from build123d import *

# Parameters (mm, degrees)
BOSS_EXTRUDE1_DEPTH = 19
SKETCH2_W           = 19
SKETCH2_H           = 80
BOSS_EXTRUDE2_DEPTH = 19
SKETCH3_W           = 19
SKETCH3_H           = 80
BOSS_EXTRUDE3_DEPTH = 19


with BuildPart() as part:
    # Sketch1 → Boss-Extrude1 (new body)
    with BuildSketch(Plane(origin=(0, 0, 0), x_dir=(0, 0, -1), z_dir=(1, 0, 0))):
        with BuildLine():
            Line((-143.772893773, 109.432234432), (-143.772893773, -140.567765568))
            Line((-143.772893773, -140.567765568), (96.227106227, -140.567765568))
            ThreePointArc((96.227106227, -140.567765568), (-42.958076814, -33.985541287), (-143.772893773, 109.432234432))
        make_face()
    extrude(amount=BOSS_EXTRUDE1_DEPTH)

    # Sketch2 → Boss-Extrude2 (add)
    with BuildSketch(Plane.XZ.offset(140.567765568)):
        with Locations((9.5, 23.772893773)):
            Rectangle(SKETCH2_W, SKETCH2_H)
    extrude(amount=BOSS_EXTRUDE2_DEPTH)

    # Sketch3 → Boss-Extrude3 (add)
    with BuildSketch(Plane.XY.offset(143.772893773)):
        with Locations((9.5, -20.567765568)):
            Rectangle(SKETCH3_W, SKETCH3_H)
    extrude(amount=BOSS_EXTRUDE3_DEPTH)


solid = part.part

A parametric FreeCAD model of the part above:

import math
import FreeCAD as App
import Part
import Sketcher
from FreeCAD import Vector
Q = App.Units.Quantity

doc = App.newDocument("Part")
body = doc.addObject("PartDesign::Body", "Body")

sketch1 = body.newObject("Sketcher::SketchObject", "Sketch")
sketch1.AttachmentSupport = (doc.getObject("YZ_Plane"), [""])
sketch1.MapMode = "FlatFace"
sketch1.addGeometry(Part.LineSegment(Vector(109.432234, 143.772894, 0), Vector(-140.567766, 143.772894, 0)), False)
sketch1.addGeometry(Part.LineSegment(Vector(-140.567766, 143.772894, 0), Vector(-140.567766, -96.227106, 0)), False)
sketch1.addGeometry(Part.ArcOfCircle(Part.Circle(Vector(366.150031, -373.849811, 0), Vector(0, 0, 1), 577.786545), math.radians(116.379362), math.radians(151.282359)), False)
sketch1.addConstraint(Sketcher.Constraint("Coincident", 0, 2, 1, 1))
sketch1.addConstraint(Sketcher.Constraint("Coincident", 1, 2, 2, 2))
sketch1.addConstraint(Sketcher.Constraint("Coincident", 2, 1, 0, 1))
sketch1.addConstraint(Sketcher.Constraint("Horizontal", 0))
sketch1.addConstraint(Sketcher.Constraint("Vertical", 1))
sketch1.addConstraint(Sketcher.Constraint("DistanceX", 0, 2, 0, 1, Q("250 mm")))
sketch1.addConstraint(Sketcher.Constraint("DistanceY", 1, 2, 1, 1, Q("240 mm")))
sketch1.addConstraint(Sketcher.Constraint("Radius", 2, Q("577.786545 mm")))
sketch1.addConstraint(Sketcher.Constraint("DistanceX", -1, 1, 2, 3, Q("366.150031 mm")))
sketch1.addConstraint(Sketcher.Constraint("DistanceY", 2, 3, -1, 1, Q("373.849811 mm")))
pad1 = body.newObject("PartDesign::Pad", "Pad")
pad1.Profile = sketch1
pad1.Length = 19

sketch2 = body.newObject("Sketcher::SketchObject", "Sketch001")
sketch2.AttachmentSupport = (doc.getObject("XZ_Plane"), [""])
sketch2.MapMode = "FlatFace"
sketch2.AttachmentOffset = App.Placement(Vector(0, 0, 140.567766), App.Rotation())
sketch2.addGeometry(Part.LineSegment(Vector(0, 63.772894, 0), Vector(0, -16.227106, 0)), False)
sketch2.addGeometry(Part.LineSegment(Vector(0, -16.227106, 0), Vector(19, -16.227106, 0)), False)
sketch2.addGeometry(Part.LineSegment(Vector(19, -16.227106, 0), Vector(19, 63.772894, 0)), False)
sketch2.addGeometry(Part.LineSegment(Vector(19, 63.772894, 0), Vector(0, 63.772894, 0)), False)
sketch2.addConstraint(Sketcher.Constraint("Coincident", 0, 2, 1, 1))
sketch2.addConstraint(Sketcher.Constraint("Coincident", 1, 2, 2, 1))
sketch2.addConstraint(Sketcher.Constraint("Coincident", 2, 2, 3, 1))
sketch2.addConstraint(Sketcher.Constraint("Coincident", 3, 2, 0, 1))
sketch2.addConstraint(Sketcher.Constraint("Vertical", 0))
sketch2.addConstraint(Sketcher.Constraint("Horizontal", 1))
sketch2.addConstraint(Sketcher.Constraint("Vertical", 2))
sketch2.addConstraint(Sketcher.Constraint("Horizontal", 3))
sketch2.addConstraint(Sketcher.Constraint("PointOnObject", 0, 2, -2))
sketch2.addConstraint(Sketcher.Constraint("DistanceX", 1, 1, 1, 2, Q("19 mm")))
sketch2.addConstraint(Sketcher.Constraint("DistanceY", 0, 2, 0, 1, Q("80 mm")))
sketch2.addConstraint(Sketcher.Constraint("DistanceY", 0, 2, -1, 1, Q("16.227106 mm")))
pad2 = body.newObject("PartDesign::Pad", "Pad001")
pad2.Profile = sketch2
pad2.Length = 19

sketch3 = body.newObject("Sketcher::SketchObject", "Sketch002")
sketch3.AttachmentSupport = (doc.getObject("XY_Plane"), [""])
sketch3.MapMode = "FlatFace"
sketch3.AttachmentOffset = App.Placement(Vector(0, 0, 143.772894), App.Rotation())
sketch3.addGeometry(Part.LineSegment(Vector(0, 19.432234, 0), Vector(0, -60.567766, 0)), False)
sketch3.addGeometry(Part.LineSegment(Vector(0, -60.567766, 0), Vector(19, -60.567766, 0)), False)
sketch3.addGeometry(Part.LineSegment(Vector(19, -60.567766, 0), Vector(19, 19.432234, 0)), False)
sketch3.addGeometry(Part.LineSegment(Vector(19, 19.432234, 0), Vector(0, 19.432234, 0)), False)
sketch3.addConstraint(Sketcher.Constraint("Coincident", 0, 2, 1, 1))
sketch3.addConstraint(Sketcher.Constraint("Coincident", 1, 2, 2, 1))
sketch3.addConstraint(Sketcher.Constraint("Coincident", 2, 2, 3, 1))
sketch3.addConstraint(Sketcher.Constraint("Coincident", 3, 2, 0, 1))
sketch3.addConstraint(Sketcher.Constraint("Vertical", 0))
sketch3.addConstraint(Sketcher.Constraint("Horizontal", 1))
sketch3.addConstraint(Sketcher.Constraint("Vertical", 2))
sketch3.addConstraint(Sketcher.Constraint("Horizontal", 3))
sketch3.addConstraint(Sketcher.Constraint("PointOnObject", 0, 2, -2))
sketch3.addConstraint(Sketcher.Constraint("DistanceX", 1, 1, 1, 2, Q("19 mm")))
sketch3.addConstraint(Sketcher.Constraint("DistanceY", 0, 2, 0, 1, Q("80 mm")))
sketch3.addConstraint(Sketcher.Constraint("DistanceY", 0, 2, -1, 1, Q("60.567766 mm")))
pad3 = body.newObject("PartDesign::Pad", "Pad002")
pad3.Profile = sketch3
pad3.Length = 19

doc.recompute()
